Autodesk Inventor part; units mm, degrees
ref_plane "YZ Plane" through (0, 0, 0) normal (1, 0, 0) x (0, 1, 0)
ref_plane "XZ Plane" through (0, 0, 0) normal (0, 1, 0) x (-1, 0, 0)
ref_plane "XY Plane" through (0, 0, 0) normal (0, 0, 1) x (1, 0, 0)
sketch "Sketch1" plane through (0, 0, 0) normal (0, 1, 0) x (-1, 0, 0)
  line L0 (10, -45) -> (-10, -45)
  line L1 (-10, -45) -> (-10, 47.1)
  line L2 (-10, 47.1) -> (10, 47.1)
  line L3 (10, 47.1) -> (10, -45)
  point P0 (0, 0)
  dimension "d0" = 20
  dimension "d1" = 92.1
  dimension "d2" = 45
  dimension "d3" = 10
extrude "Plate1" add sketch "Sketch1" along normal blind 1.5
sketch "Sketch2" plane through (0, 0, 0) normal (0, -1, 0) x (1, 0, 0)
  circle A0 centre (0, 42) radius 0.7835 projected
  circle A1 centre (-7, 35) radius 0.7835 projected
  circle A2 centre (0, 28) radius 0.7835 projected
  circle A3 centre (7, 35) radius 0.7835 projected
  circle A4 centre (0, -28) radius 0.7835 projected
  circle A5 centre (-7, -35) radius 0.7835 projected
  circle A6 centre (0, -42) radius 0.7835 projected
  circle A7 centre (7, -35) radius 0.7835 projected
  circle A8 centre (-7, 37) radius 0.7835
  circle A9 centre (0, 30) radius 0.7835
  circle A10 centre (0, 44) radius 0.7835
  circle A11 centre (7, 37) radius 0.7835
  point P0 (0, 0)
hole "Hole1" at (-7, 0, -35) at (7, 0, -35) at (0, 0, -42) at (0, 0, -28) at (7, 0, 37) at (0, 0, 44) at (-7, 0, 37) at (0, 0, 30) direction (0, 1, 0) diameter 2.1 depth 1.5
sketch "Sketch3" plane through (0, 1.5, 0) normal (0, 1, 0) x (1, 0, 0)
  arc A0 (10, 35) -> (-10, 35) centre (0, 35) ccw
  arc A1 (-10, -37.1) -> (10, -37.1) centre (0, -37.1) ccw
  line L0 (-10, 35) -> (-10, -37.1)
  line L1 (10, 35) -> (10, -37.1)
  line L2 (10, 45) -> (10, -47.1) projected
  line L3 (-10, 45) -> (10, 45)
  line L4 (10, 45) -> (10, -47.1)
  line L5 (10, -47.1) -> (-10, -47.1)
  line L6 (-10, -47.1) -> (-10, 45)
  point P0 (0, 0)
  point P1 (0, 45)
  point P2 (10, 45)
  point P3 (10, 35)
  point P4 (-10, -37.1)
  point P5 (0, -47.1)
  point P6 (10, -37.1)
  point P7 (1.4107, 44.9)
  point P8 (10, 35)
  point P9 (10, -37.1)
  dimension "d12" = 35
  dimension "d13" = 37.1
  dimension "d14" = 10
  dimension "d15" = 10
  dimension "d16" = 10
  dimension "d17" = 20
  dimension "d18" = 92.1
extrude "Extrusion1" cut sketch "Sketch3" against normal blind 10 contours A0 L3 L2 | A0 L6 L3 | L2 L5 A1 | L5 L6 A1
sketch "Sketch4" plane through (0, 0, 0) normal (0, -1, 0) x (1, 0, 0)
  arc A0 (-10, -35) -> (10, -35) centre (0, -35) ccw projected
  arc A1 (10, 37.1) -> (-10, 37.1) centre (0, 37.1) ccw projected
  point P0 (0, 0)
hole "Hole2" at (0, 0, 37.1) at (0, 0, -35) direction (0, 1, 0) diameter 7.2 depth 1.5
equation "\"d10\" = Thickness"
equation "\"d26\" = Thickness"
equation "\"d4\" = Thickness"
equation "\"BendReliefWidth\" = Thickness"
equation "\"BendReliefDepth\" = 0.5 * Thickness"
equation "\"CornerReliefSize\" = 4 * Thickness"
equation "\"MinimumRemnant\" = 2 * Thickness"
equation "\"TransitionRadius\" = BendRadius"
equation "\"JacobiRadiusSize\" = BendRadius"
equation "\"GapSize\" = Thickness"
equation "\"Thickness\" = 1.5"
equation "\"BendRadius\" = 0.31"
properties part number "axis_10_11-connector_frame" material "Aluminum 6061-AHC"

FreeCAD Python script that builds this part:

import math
import FreeCAD as App
import Part
import Sketcher
from FreeCAD import Vector
Q = App.Units.Quantity

doc = App.newDocument("Part")
body = doc.addObject("PartDesign::Body", "Body")

# Sketch on XZ plane
sketch1 = doc.addObject("Sketcher::SketchObject", "Sketch")
body.addObject(sketch1)
sketch1.AttachmentSupport = (doc.XZ_Plane, [""])
sketch1.MapMode = "FlatFace"
sketch1.addGeometry([
    Part.LineSegment(Vector(10, -45, 0), Vector(-10, -45, 0)),
    Part.LineSegment(Vector(-10, -45, 0), Vector(-10, 47, 0)),
    Part.LineSegment(Vector(-10, 47, 0), Vector(10, 47, 0)),
    Part.LineSegment(Vector(10, 47, 0), Vector(10, -45, 0)),
], False)
sketch1.addConstraint([
    Sketcher.Constraint("Coincident", 0, 2, 1, 1),
    Sketcher.Constraint("Coincident", 1, 2, 2, 1),
    Sketcher.Constraint("Coincident", 2, 2, 3, 1),
    Sketcher.Constraint("Coincident", 3, 2, 0, 1),
    Sketcher.Constraint("Horizontal", 0),
    Sketcher.Constraint("Vertical", 1),
    Sketcher.Constraint("Horizontal", 2),
    Sketcher.Constraint("Vertical", 3),
    Sketcher.Constraint("DistanceX", 0, 2, 0, 1, Q("20 mm")),
    Sketcher.Constraint("DistanceY", 1, 1, 1, 2, Q("92.1 mm")),
    Sketcher.Constraint("DistanceX", 0, 2, -1, 1, Q("10 mm")),
    Sketcher.Constraint("DistanceY", 0, 2, -1, 1, Q("45 mm")),
])
pad1 = doc.addObject("PartDesign::Pad", "Pad")
body.addObject(pad1)
pad1.Profile = sketch1
pad1.Length = 1.5
pad1.Reversed = True

# Sketch on XZ plane
sketch2 = doc.addObject("Sketcher::SketchObject", "Sketch001")
body.addObject(sketch2)
sketch2.AttachmentSupport = (doc.XZ_Plane, [""])
sketch2.MapMode = "FlatFace"
sketch2.addGeometry([
    Part.Circle(Vector(-7, -35, 0), Vector(0, 0, 1), 1.1),  # 0
    Part.Circle(Vector(7, -35, 0), Vector(0, 0, 1), 1.1),  # 1
    Part.Circle(Vector(0, -42, 0), Vector(0, 0, 1), 1.1),  # 2
    Part.Circle(Vector(0, -28, 0), Vector(0, 0, 1), 1.1),  # 3
    Part.Circle(Vector(7, 37, 0), Vector(0, 0, 1), 1.1),  # 4
    Part.Circle(Vector(0, 44, 0), Vector(0, 0, 1), 1.1),  # 5
    Part.Circle(Vector(-7, 37, 0), Vector(0, 0, 1), 1.1),  # 6
    Part.Circle(Vector(0, 30, 0), Vector(0, 0, 1), 1.1),  # 7
], False)
sketch2.addConstraint([
    Sketcher.Constraint("Equal", 0, 1),
    Sketcher.Constraint("Equal", 1, 2),
    Sketcher.Constraint("Equal", 2, 3),
    Sketcher.Constraint("Equal", 3, 4),
    Sketcher.Constraint("Equal", 4, 5),
    Sketcher.Constraint("Equal", 5, 6),
    Sketcher.Constraint("Equal", 6, 7),
    Sketcher.Constraint("Symmetric", 0, 3, 1, 3, -2),
    Sketcher.Constraint("Symmetric", 4, 3, 6, 3, -2),
    Sketcher.Constraint("PointOnObject", 2, 3, -2),
    Sketcher.Constraint("PointOnObject", 3, 3, -2),
    Sketcher.Constraint("PointOnObject", 5, 3, -2),
    Sketcher.Constraint("PointOnObject", 7, 3, -2),
    Sketcher.Constraint("Vertical", 1, 3, 4, 3),
    Sketcher.Constraint("Diameter", 0, Q("2.1 mm")),
    Sketcher.Constraint("DistanceX", 0, 3, -1, 1, Q("7 mm")),
    Sketcher.Constraint("DistanceY", 0, 3, -1, 1, Q("35 mm")),
    Sketcher.Constraint("DistanceY", 2, 3, -1, 1, Q("42 mm")),
    Sketcher.Constraint("DistanceY", 3, 3, -1, 1, Q("28 mm")),
    Sketcher.Constraint("DistanceY", -1, 1, 4, 3, Q("37 mm")),
    Sketcher.Constraint("DistanceY", -1, 1, 5, 3, Q("44 mm")),
    Sketcher.Constraint("DistanceY", -1, 1, 7, 3, Q("30 mm")),
])
doc.recompute()
hole = doc.addObject("PartDesign::Hole", "Hole")
body.addObject(hole)
hole.Profile = sketch2
hole.ThreadType = "None"
hole.Diameter = 2.1
hole.DepthType = "Dimension"
hole.Depth = 1.5
hole.DrillPoint = "Flat"

# Sketch on XZ plane
sketch3 = doc.addObject("Sketcher::SketchObject", "Sketch002")
body.addObject(sketch3)
sketch3.AttachmentSupport = (doc.XZ_Plane, [""])
sketch3.MapMode = "FlatFace"
sketch3.AttachmentOffset = App.Placement(Vector(0, 0, -1.5), App.Rotation())
sketch3.addGeometry([
    Part.ArcOfCircle(Part.Circle(Vector(0, -35, 0), Vector(0, 0, 1), 10), math.radians(-90), math.radians(0)),  # 0
    Part.LineSegment(Vector(10, -35, 0), Vector(10, -45, 0)),  # 1
    Part.LineSegment(Vector(10, -45, 0), Vector(0, -45, 0)),  # 2
    Part.ArcOfCircle(Part.Circle(Vector(0, -35, 0), Vector(0, 0, 1), 10), math.radians(180), math.radians(270)),  # 3
    Part.LineSegment(Vector(0, -45, 0), Vector(-10, -45, 0)),  # 4
    Part.LineSegment(Vector(-10, -45, 0), Vector(-10, -35, 0)),  # 5
    Part.LineSegment(Vector(10, 47, 0), Vector(10, 37, 0)),  # 6
    Part.ArcOfCircle(Part.Circle(Vector(0, 37, 0), Vector(0, 0, 1), 10), math.radians(0), math.radians(90)),  # 7
    Part.LineSegment(Vector(0, 47, 0), Vector(10, 47, 0)),  # 8
    Part.LineSegment(Vector(-10, 47, 0), Vector(0, 47, 0)),  # 9
    Part.ArcOfCircle(Part.Circle(Vector(0, 37, 0), Vector(0, 0, 1), 10), math.radians(90), math.radians(180)),  # 10
    Part.LineSegment(Vector(-10, 37, 0), Vector(-10, 47, 0)),  # 11
], False)
sketch3.addConstraint([
    Sketcher.Constraint("Tangent", 0, 2, 1, 1),
    Sketcher.Constraint("Coincident", 1, 2, 2, 1),
    Sketcher.Constraint("Tangent", 2, 2, 0, 1),
    Sketcher.Constraint("Tangent", 3, 2, 4, 1),
    Sketcher.Constraint("Coincident", 4, 2, 5, 1),
    Sketcher.Constraint("Tangent", 5, 2, 3, 1),
    Sketcher.Constraint("Tangent", 6, 2, 7, 1),
    Sketcher.Constraint("Tangent", 7, 2, 8, 1),
    Sketcher.Constraint("Coincident", 8, 2, 6, 1),
    Sketcher.Constraint("Tangent", 9, 2, 10, 1),
    Sketcher.Constraint("Tangent", 10, 2, 11, 1),
    Sketcher.Constraint("Coincident", 11, 2, 9, 1),
    Sketcher.Constraint("Vertical", 1),
    Sketcher.Constraint("Horizontal", 2),
    Sketcher.Constraint("Horizontal", 4),
    Sketcher.Constraint("Vertical", 5),
    Sketcher.Constraint("Vertical", 6),
    Sketcher.Constraint("Horizontal", 8),
    Sketcher.Constraint("Horizontal", 9),
    Sketcher.Constraint("Vertical", 11),
    Sketcher.Constraint("Coincident", 3, 3, 0, 3),
    Sketcher.Constraint("Coincident", 10, 3, 7, 3),
    Sketcher.Constraint("Equal", 0, 3),
    Sketcher.Constraint("Equal", 3, 7),
    Sketcher.Constraint("Equal", 7, 10),
    Sketcher.Constraint("PointOnObject", 0, 3, -2),
    Sketcher.Constraint("PointOnObject", 7, 3, -2),
    Sketcher.Constraint("Radius", 0, Q("10 mm")),
    Sketcher.Constraint("DistanceY", 0, 3, -1, 1, Q("35 mm")),
    Sketcher.Constraint("DistanceY", -1, 1, 7, 3, Q("37.1 mm")),
])
pocket1 = doc.addObject("PartDesign::Pocket", "Pocket")
body.addObject(pocket1)
pocket1.Profile = sketch3
pocket1.Length = 10
pocket1.Reversed = True

# Sketch on XZ plane
sketch4 = doc.addObject("Sketcher::SketchObject", "Sketch003")
body.addObject(sketch4)
sketch4.AttachmentSupport = (doc.XZ_Plane, [""])
sketch4.MapMode = "FlatFace"
sketch4.addGeometry([
    Part.Circle(Vector(0, 37.1, 0), Vector(0, 0, 1), 3.6),
    Part.Circle(Vector(0, -35, 0), Vector(0, 0, 1), 3.6),
], False)
sketch4.addConstraint([
    Sketcher.Constraint("Equal", 0, 1),
    Sketcher.Constraint("PointOnObject", 0, 3, -2),
    Sketcher.Constraint("PointOnObject", 1, 3, -2),
    Sketcher.Constraint("Diameter", 0, Q("7.2 mm")),
    Sketcher.Constraint("DistanceY", 1, 3, -1, 1, Q("35 mm")),
    Sketcher.Constraint("DistanceY", -1, 1, 0, 3, Q("37.1 mm")),
])
doc.recompute()
hole2 = doc.addObject("PartDesign::Hole", "Hole001")
body.addObject(hole2)
hole2.Profile = sketch4
hole2.ThreadType = "None"
hole2.Diameter = 7.2
hole2.DepthType = "Dimension"
hole2.Depth = 1.5
hole2.DrillPoint = "Flat"

doc.recompute()
